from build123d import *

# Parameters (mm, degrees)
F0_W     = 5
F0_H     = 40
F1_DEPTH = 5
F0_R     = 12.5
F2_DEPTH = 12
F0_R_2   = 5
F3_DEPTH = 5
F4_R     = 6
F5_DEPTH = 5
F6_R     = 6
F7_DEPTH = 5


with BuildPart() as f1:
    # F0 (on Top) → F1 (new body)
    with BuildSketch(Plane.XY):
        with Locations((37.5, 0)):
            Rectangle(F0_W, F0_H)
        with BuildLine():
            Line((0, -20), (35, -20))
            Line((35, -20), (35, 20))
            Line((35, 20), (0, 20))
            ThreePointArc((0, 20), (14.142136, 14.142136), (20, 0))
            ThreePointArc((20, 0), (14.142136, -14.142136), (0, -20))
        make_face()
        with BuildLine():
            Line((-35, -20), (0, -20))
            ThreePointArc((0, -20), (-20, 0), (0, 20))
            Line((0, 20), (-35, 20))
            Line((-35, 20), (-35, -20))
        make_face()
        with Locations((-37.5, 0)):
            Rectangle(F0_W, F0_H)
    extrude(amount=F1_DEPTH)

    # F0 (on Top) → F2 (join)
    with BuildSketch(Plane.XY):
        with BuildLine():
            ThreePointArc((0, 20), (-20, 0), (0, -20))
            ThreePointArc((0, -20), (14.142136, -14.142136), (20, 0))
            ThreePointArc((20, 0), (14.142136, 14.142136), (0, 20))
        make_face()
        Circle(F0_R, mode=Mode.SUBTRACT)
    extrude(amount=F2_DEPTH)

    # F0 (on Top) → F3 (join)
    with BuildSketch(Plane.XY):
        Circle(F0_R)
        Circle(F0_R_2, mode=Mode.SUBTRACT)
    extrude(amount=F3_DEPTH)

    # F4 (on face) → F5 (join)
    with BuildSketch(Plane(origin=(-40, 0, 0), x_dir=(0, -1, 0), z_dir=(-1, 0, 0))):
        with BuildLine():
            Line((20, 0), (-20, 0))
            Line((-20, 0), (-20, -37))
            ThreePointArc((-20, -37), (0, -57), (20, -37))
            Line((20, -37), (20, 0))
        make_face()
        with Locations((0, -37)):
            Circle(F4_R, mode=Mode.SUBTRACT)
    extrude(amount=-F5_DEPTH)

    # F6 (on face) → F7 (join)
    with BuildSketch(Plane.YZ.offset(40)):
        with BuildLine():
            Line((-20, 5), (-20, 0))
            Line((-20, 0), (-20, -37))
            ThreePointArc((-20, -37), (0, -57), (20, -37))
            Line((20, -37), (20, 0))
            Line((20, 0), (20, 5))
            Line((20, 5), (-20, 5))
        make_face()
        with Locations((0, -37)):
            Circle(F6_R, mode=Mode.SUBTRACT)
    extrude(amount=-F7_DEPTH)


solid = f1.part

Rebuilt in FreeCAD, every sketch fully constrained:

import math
import FreeCAD as App
import Part
import Sketcher
Q = App.Units.Quantity

doc = App.newDocument("Part")
params = doc.addObject("Spreadsheet::Sheet", "Params")
for row, (alias, value) in enumerate([
    ("sketch1_radius", "19.999999 mm"),
    ("pad1_length", "5 mm"),
    ("sketch2_diameter", "25 mm"),
    ("sketch2_radius", "20 mm"),
    ("pad2_length", "12 mm"),
    ("sketch3_diameter", "25 mm"),
    ("sketch3_diameter2", "10 mm"),
    ("pad3_length", "5 mm"),
    ("sketch4_diameter", "12 mm"),
    ("sketch4_radius", "20 mm"),
    ("sketch4_height", "37 mm"),
    ("pad4_length", "5 mm"),
    ("sketch5_diameter", "12 mm"),
    ("sketch5_radius", "20 mm"),
    ("sketch5_height", "42 mm"),
    ("pad5_length", "5 mm"),
], start=1):
    params.set(f"A{row}", alias)
    params.set(f"B{row}", "=" + value)
    params.setAlias(f"B{row}", alias)

body = doc.addObject("PartDesign::Body", "Body")
body.AllowCompound = True

sketch1 = body.newObject("Sketcher::SketchObject", "Sketch")
sketch1.AttachmentSupport = (doc.getObject("XY_Plane"), [""])
sketch1.MapMode = "FlatFace"
sketch1.addGeometry([
    Part.LineSegment(App.Vector(40, -20, 0), App.Vector(40, 20, 0)),
    Part.LineSegment(App.Vector(40, 20, 0), App.Vector(0, 20, 0)),
    Part.ArcOfCircle(Part.Circle(App.Vector(0, 0, 0), App.Vector(0, 0, 1), 20), math.radians(0), math.radians(90)),
    Part.ArcOfCircle(Part.Circle(App.Vector(0, 0, 0), App.Vector(0, 0, 1), 20), math.radians(-90), math.radians(0)),
    Part.LineSegment(App.Vector(0, -20, 0), App.Vector(40, -20, 0)),
    Part.ArcOfCircle(Part.Circle(App.Vector(0, 0, 0), App.Vector(0, 0, 1), 20), math.radians(90), math.radians(270)),
    Part.LineSegment(App.Vector(0, 20, 0), App.Vector(-40, 20, 0)),
    Part.LineSegment(App.Vector(-40, 20, 0), App.Vector(-40, -20, 0)),
    Part.LineSegment(App.Vector(-40, -20, 0), App.Vector(0, -20, 0)),
], False)
sketch1.addConstraint([
    Sketcher.Constraint("Coincident", 0, 2, 1, 1),
    Sketcher.Constraint("Tangent", 1, 2, 2, 2),
    Sketcher.Constraint("Tangent", 2, 1, 3, 2),
    Sketcher.Constraint("Tangent", 3, 1, 4, 1),
    Sketcher.Constraint("Coincident", 4, 2, 0, 1),
    Sketcher.Constraint("Tangent", 5, 1, 6, 1),
    Sketcher.Constraint("Coincident", 6, 2, 7, 1),
    Sketcher.Constraint("Coincident", 7, 2, 8, 1),
    Sketcher.Constraint("Tangent", 8, 2, 5, 2),
    Sketcher.Constraint("Vertical", 0),
    Sketcher.Constraint("Horizontal", 1),
    Sketcher.Constraint("Horizontal", 4),
    Sketcher.Constraint("Horizontal", 6),
    Sketcher.Constraint("Vertical", 7),
    Sketcher.Constraint("Horizontal", 8),
    Sketcher.Constraint("Coincident", 2, 3, -1, 1),
    Sketcher.Constraint("Coincident", 5, 3, -1, 1),
    Sketcher.Constraint("Coincident", 8, 2, 3, 1),
    Sketcher.Constraint("PointOnObject", 2, 1, -1),
    Sketcher.Constraint("Equal", 4, 6),
    Sketcher.Constraint("Equal", 8, 0),
    Sketcher.Constraint("Radius", 2, Q("19.999999 mm")),
])
sketch1.setExpression("Constraints[21]", "Params.sketch1_radius")
pad1 = body.newObject("PartDesign::Pad", "Pad")
pad1.Profile = sketch1
pad1.setExpression("Length", "Params.pad1_length")

sketch2 = body.newObject("Sketcher::SketchObject", "Sketch001")
sketch2.AttachmentSupport = (doc.getObject("XY_Plane"), [""])
sketch2.MapMode = "FlatFace"
sketch2.addGeometry([
    Part.ArcOfCircle(Part.Circle(App.Vector(0, 0, 0), App.Vector(0, 0, 1), 20), math.radians(90), math.radians(270)),
    Part.ArcOfCircle(Part.Circle(App.Vector(0, 0, 0), App.Vector(0, 0, 1), 20), math.radians(-90), math.radians(0)),
    Part.ArcOfCircle(Part.Circle(App.Vector(0, 0, 0), App.Vector(0, 0, 1), 20), math.radians(0), math.radians(90)),
    Part.Circle(App.Vector(0, 0, 0), App.Vector(0, 0, 1), 12),
], False)
sketch2.addConstraint([
    Sketcher.Constraint("Tangent", 0, 2, 1, 1),
    Sketcher.Constraint("Tangent", 1, 2, 2, 1),
    Sketcher.Constraint("Tangent", 2, 2, 0, 1),
    Sketcher.Constraint("Coincident", 0, 3, -1, 1),
    Sketcher.Constraint("Coincident", 3, 3, -1, 1),
    Sketcher.Constraint("PointOnObject", 0, 2, -2),
    Sketcher.Constraint("PointOnObject", 1, 2, -1),
    Sketcher.Constraint("PointOnObject", 2, 2, -2),
    Sketcher.Constraint("Diameter", 3, Q("25 mm")),
    Sketcher.Constraint("Radius", 0, Q("20 mm")),
])
sketch2.setExpression("Constraints[8]", "Params.sketch2_diameter")
sketch2.setExpression("Constraints[9]", "Params.sketch2_radius")
pad2 = body.newObject("PartDesign::Pad", "Pad001")
pad2.Profile = sketch2
pad2.setExpression("Length", "Params.pad2_length")

sketch3 = body.newObject("Sketcher::SketchObject", "Sketch002")
sketch3.AttachmentSupport = (doc.getObject("XY_Plane"), [""])
sketch3.MapMode = "FlatFace"
sketch3.addGeometry([
    Part.Circle(App.Vector(0, 0, 0), App.Vector(0, 0, 1), 12),
    Part.Circle(App.Vector(0, 0, 0), App.Vector(0, 0, 1), 5),
], False)
sketch3.addConstraint([
    Sketcher.Constraint("Coincident", 0, 3, -1, 1),
    Sketcher.Constraint("Coincident", 1, 3, -1, 1),
    Sketcher.Constraint("Diameter", 0, Q("25 mm")),
    Sketcher.Constraint("Diameter", 1, Q("10 mm")),
])
sketch3.setExpression("Constraints[2]", "Params.sketch3_diameter")
sketch3.setExpression("Constraints[3]", "Params.sketch3_diameter2")
pad3 = body.newObject("PartDesign::Pad", "Pad002")
pad3.Profile = sketch3
pad3.setExpression("Length", "Params.pad3_length")

sketch4 = body.newObject("Sketcher::SketchObject", "Sketch003")
sketch4.AttachmentSupport = (doc.getObject("YZ_Plane"), [""])
sketch4.MapMode = "FlatFace"
sketch4.AttachmentOffset = App.Placement(App.Vector(0, 0, -40), App.Rotation())
sketch4.addGeometry([
    Part.LineSegment(App.Vector(-20, 0, 0), App.Vector(20, 0, 0)),
    Part.LineSegment(App.Vector(20, 0, 0), App.Vector(20, -37, 0)),
    Part.ArcOfCircle(Part.Circle(App.Vector(0, -37, 0), App.Vector(0, 0, 1), 20), math.radians(180), math.radians(360)),
    Part.LineSegment(App.Vector(-20, -37, 0), App.Vector(-20, 0, 0)),
    Part.Circle(App.Vector(0, -37, 0), App.Vector(0, 0, 1), 6),
], False)
sketch4.addConstraint([
    Sketcher.Constraint("Coincident", 0, 2, 1, 1),
    Sketcher.Constraint("Tangent", 1, 2, 2, 2),
    Sketcher.Constraint("Tangent", 2, 1, 3, 1),
    Sketcher.Constraint("Coincident", 3, 2, 0, 1),
    Sketcher.Constraint("Horizontal", 0),
    Sketcher.Constraint("Vertical", 1),
    Sketcher.Constraint("Vertical", 3),
    Sketcher.Constraint("Coincident", 4, 3, 2, 3),
    Sketcher.Constraint("Symmetric", 0, 2, 3, 2, -1, 1),
    Sketcher.Constraint("Diameter", 4, Q("12 mm")),
    Sketcher.Constraint("Radius", 2, Q("20 mm")),
    Sketcher.Constraint("DistanceY", 1, 2, 1, 1, Q("37 mm")),
])
sketch4.setExpression("Constraints[9]", "Params.sketch4_diameter")
sketch4.setExpression("Constraints[10]", "Params.sketch4_radius")
sketch4.setExpression("Constraints[11]", "Params.sketch4_height")
pad4 = body.newObject("PartDesign::Pad", "Pad003")
pad4.Profile = sketch4
pad4.setExpression("Length", "Params.pad4_length")

sketch5 = body.newObject("Sketcher::SketchObject", "Sketch004")
sketch5.AttachmentSupport = (doc.getObject("YZ_Plane"), [""])
sketch5.MapMode = "FlatFace"
sketch5.AttachmentOffset = App.Placement(App.Vector(0, 0, 40), App.Rotation())
sketch5.addGeometry([
    Part.LineSegment(App.Vector(-20, 5, 0), App.Vector(-20, -37, 0)),
    Part.ArcOfCircle(Part.Circle(App.Vector(0, -37, 0), App.Vector(0, 0, 1), 20), math.radians(180), math.radians(360)),
    Part.LineSegment(App.Vector(20, -37, 0), App.Vector(20, 5, 0)),
    Part.LineSegment(App.Vector(20, 5, 0), App.Vector(-20, 5, 0)),
    Part.Circle(App.Vector(0, -37, 0), App.Vector(0, 0, 1), 6),
], False)
sketch5.addConstraint([
    Sketcher.Constraint("Tangent", 0, 2, 1, 1),
    Sketcher.Constraint("Tangent", 1, 2, 2, 1),
    Sketcher.Constraint("Coincident", 2, 2, 3, 1),
    Sketcher.Constraint("Coincident", 3, 2, 0, 1),
    Sketcher.Constraint("Vertical", 0),
    Sketcher.Constraint("Vertical", 2),
    Sketcher.Constraint("Horizontal", 3),
    Sketcher.Constraint("Coincident", 4, 3, 1, 3),
    Sketcher.Constraint("PointOnObject", 1, 3, -2),
    Sketcher.Constraint("Diameter", 4, Q("12 mm")),
    Sketcher.Constraint("Radius", 1, Q("20 mm")),
    Sketcher.Constraint("DistanceY", 0, 2, 0, 1, Q("42 mm")),
    Sketcher.Constraint("DistanceY", 1, 3, -1, 1, Q("37 mm")),
])
sketch5.setExpression("Constraints[9]", "Params.sketch5_diameter")
sketch5.setExpression("Constraints[10]", "Params.sketch5_radius")
sketch5.setExpression("Constraints[11]", "Params.sketch5_height")
pad5 = body.newObject("PartDesign::Pad", "Pad004")
pad5.Profile = sketch5
pad5.setExpression("Length", "Params.pad5_length")
pad5.Reversed = True

doc.recompute()
